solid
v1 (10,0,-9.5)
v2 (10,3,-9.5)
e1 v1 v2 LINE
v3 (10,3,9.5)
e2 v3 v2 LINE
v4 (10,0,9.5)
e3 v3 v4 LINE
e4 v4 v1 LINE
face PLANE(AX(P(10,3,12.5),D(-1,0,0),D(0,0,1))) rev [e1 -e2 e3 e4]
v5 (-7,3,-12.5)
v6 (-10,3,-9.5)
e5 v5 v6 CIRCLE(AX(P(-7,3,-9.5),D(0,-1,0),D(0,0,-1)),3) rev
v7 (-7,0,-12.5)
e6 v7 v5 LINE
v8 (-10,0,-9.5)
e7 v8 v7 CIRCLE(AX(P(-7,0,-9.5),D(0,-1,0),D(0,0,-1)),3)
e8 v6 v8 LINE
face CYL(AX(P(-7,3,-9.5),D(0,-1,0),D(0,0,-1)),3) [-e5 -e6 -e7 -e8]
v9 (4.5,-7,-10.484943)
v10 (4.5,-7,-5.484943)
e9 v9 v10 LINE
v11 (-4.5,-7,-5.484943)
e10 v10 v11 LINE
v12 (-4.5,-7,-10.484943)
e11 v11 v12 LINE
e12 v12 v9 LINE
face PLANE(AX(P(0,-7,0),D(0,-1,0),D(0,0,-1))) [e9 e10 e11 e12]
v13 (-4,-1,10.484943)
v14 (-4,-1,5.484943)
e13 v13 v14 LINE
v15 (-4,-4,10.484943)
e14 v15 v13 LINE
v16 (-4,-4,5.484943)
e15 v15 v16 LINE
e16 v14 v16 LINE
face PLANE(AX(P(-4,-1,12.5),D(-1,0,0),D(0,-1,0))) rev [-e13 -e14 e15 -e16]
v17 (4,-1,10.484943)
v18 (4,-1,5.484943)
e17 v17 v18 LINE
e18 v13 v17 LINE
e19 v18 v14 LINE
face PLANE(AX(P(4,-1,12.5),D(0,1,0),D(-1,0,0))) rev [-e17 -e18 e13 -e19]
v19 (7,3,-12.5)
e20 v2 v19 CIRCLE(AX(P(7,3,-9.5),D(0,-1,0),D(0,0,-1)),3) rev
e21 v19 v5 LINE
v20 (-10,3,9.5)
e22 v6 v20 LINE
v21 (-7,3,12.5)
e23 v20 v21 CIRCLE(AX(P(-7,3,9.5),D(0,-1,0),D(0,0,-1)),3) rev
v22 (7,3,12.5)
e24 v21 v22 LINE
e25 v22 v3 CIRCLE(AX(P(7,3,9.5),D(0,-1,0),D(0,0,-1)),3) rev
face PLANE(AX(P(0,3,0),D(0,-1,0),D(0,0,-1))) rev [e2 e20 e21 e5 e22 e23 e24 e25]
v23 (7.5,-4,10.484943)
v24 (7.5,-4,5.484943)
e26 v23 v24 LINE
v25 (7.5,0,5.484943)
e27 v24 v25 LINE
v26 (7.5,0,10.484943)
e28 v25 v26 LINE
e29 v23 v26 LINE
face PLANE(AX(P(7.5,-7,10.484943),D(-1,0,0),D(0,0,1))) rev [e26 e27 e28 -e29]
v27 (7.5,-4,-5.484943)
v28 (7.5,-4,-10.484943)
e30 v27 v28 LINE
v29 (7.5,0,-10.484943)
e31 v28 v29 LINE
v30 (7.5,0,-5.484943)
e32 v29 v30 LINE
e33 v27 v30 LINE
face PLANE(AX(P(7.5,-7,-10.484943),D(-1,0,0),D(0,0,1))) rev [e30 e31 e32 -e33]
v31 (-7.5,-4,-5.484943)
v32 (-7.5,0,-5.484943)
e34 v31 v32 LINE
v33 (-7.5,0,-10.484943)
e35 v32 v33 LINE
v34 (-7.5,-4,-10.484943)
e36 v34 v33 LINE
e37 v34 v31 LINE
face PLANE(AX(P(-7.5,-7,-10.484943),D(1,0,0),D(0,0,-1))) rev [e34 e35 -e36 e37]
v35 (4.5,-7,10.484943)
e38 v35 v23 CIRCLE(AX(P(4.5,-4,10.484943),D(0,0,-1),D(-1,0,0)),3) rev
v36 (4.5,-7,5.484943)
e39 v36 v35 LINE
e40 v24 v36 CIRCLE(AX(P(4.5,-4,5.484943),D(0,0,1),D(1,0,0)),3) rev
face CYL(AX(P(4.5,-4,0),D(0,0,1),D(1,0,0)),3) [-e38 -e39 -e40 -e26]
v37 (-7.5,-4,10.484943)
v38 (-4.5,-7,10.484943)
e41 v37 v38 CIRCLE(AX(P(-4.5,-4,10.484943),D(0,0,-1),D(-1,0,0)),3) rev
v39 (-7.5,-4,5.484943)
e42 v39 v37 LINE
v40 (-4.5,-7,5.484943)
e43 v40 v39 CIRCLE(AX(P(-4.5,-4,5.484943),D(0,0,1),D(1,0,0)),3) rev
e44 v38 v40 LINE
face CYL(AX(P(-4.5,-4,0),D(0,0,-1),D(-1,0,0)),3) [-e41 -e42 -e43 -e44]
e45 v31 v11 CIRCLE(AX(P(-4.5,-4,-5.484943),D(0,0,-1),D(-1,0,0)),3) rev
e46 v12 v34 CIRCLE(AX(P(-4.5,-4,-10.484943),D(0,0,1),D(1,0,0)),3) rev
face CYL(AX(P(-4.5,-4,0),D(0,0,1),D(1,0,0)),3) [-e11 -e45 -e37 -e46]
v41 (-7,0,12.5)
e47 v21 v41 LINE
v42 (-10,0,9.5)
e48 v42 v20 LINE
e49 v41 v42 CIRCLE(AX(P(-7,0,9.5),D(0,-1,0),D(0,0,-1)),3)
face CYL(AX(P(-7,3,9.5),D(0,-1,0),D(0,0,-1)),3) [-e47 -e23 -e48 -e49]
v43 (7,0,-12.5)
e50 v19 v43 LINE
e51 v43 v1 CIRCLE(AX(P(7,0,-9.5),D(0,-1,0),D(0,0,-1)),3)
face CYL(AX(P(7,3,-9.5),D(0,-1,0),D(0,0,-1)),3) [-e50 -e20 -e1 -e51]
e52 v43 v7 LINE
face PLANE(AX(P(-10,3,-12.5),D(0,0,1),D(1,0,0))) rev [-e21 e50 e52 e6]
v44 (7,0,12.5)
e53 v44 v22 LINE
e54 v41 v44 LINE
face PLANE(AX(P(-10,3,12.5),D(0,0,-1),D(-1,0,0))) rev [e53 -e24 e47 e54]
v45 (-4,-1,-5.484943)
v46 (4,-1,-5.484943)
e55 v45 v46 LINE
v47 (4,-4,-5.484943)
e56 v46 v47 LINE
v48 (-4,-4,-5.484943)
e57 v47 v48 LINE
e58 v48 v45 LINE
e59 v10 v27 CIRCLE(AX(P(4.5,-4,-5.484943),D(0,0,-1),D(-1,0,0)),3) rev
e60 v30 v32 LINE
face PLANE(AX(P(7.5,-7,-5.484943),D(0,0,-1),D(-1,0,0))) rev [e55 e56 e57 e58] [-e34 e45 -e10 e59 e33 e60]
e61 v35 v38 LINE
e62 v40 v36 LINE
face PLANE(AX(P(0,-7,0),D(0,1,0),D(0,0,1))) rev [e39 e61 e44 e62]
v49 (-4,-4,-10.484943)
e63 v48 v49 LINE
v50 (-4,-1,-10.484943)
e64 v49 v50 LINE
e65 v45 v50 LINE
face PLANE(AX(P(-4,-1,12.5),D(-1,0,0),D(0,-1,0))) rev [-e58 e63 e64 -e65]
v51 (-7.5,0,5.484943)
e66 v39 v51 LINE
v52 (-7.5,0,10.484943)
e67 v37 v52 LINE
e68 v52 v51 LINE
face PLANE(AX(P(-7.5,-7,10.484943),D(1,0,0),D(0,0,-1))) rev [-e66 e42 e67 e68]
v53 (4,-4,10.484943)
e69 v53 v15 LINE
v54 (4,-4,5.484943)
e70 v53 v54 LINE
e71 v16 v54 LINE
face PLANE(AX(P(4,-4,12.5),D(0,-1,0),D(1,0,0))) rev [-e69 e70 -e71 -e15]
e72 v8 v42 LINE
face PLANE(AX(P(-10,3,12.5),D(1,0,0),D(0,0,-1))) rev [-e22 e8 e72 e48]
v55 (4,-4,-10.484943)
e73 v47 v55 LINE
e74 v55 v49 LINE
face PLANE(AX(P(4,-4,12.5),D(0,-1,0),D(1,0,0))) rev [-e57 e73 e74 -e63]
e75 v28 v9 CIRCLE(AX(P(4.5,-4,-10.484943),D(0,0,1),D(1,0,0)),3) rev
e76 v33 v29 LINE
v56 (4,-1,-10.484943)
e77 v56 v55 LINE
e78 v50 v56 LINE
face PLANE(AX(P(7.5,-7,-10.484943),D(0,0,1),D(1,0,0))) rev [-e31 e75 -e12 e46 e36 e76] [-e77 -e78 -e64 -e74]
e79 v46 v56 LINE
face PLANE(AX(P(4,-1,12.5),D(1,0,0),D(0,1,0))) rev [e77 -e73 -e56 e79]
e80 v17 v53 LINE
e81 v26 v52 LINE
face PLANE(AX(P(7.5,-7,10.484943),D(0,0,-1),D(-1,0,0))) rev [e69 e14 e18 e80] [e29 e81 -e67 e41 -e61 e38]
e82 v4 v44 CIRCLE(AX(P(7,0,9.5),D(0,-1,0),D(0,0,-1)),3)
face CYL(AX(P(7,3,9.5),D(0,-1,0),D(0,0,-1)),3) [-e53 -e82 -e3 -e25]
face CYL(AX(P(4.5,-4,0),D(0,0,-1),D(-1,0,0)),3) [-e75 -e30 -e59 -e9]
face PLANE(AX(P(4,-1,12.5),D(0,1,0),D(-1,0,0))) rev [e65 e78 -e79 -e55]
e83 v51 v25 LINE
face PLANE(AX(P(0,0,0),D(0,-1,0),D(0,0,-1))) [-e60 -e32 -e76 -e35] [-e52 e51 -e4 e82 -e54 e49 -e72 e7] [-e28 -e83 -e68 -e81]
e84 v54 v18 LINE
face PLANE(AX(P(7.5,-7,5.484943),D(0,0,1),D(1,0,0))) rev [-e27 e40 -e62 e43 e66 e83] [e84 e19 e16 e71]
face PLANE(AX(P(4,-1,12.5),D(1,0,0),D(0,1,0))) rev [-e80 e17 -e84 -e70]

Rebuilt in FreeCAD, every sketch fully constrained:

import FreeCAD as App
import Part
import Sketcher
from FreeCAD import Vector


def edges_at(feature, points):
    """Names of the edges that pass closest to the given points."""
    edges = feature.Shape.Edges
    near = lambda p: min(range(len(edges)), key=lambda i: edges[i].distToShape(Part.Vertex(*p))[0])
    return sorted({f"Edge{near(p) + 1}" for p in points})

doc = App.newDocument("Part")
params = doc.addObject("Spreadsheet::Sheet", "Params")
for row, (alias, value) in enumerate([
    ("sketch1_width", "20 mm"),
    ("sketch1_height", "25 mm"),
    ("pad1_length", "3 mm"),
    ("sketch2_width", "15 mm"),
    ("sketch2_height", "5 mm"),
    ("pad2_length", "7 mm"),
    ("fillet_radius", "3 mm"),
    ("sketch3_width", "8 mm"),
    ("sketch3_height", "3 mm"),
    ("fillet2_radius", "3 mm"),
], start=1):
    params.set(f"A{row}", alias)
    params.set(f"B{row}", "=" + value)
    params.setAlias(f"B{row}", alias)

body = doc.addObject("PartDesign::Body", "Body")

# Sketch on XZ plane
sketch1 = doc.addObject("Sketcher::SketchObject", "Sketch")
body.addObject(sketch1)
sketch1.AttachmentSupport = (doc.XZ_Plane, [""])
sketch1.MapMode = "FlatFace"
sketch1.addGeometry([
    Part.LineSegment(Vector(-10, -12, 0), Vector(-10, 12, 0)),
    Part.LineSegment(Vector(-10, 12, 0), Vector(10, 12, 0)),
    Part.LineSegment(Vector(10, 12, 0), Vector(10, -12, 0)),
    Part.LineSegment(Vector(10, -12, 0), Vector(-10, -12, 0)),
], False)
sketch1.addConstraint([
    Sketcher.Constraint("Coincident", 0, 2, 1, 1),
    Sketcher.Constraint("Coincident", 1, 2, 2, 1),
    Sketcher.Constraint("Coincident", 2, 2, 3, 1),
    Sketcher.Constraint("Coincident", 3, 2, 0, 1),
    Sketcher.Constraint("Vertical", 0),
    Sketcher.Constraint("Horizontal", 1),
    Sketcher.Constraint("Vertical", 2),
    Sketcher.Constraint("Horizontal", 3),
    Sketcher.Constraint("Symmetric", 0, 2, 2, 2, -1, 1),
    Sketcher.Constraint("DistanceX", 1, 1, 1, 2, 20.0),
    Sketcher.Constraint("DistanceY", 0, 1, 0, 2, 25.0),
])
sketch1.setExpression("Constraints[9]", "Params.sketch1_width")
sketch1.setExpression("Constraints[10]", "Params.sketch1_height")
pad1 = doc.addObject("PartDesign::Pad", "Pad")
body.addObject(pad1)
pad1.Profile = sketch1
pad1.setExpression("Length", "Params.pad1_length")
pad1.Reversed = True

# Sketch on XZ plane
sketch2 = doc.addObject("Sketcher::SketchObject", "Sketch001")
body.addObject(sketch2)
sketch2.AttachmentSupport = (doc.XZ_Plane, [""])
sketch2.MapMode = "FlatFace"
sketch2.addGeometry([
    Part.LineSegment(Vector(8, -10, 0), Vector(8, -5, 0)),  # 0
    Part.LineSegment(Vector(8, -5, 0), Vector(-8, -5, 0)),  # 1
    Part.LineSegment(Vector(-8, -5, 0), Vector(-8, -10, 0)),  # 2
    Part.LineSegment(Vector(-8, -10, 0), Vector(8, -10, 0)),  # 3
    Part.LineSegment(Vector(8, 5, 0), Vector(8, 10, 0)),  # 4
    Part.LineSegment(Vector(8, 10, 0), Vector(-8, 10, 0)),  # 5
    Part.LineSegment(Vector(-8, 10, 0), Vector(-8, 5, 0)),  # 6
    Part.LineSegment(Vector(-8, 5, 0), Vector(8, 5, 0)),  # 7
], False)
sketch2.addConstraint([
    Sketcher.Constraint("Coincident", 0, 2, 1, 1),
    Sketcher.Constraint("Coincident", 1, 2, 2, 1),
    Sketcher.Constraint("Coincident", 2, 2, 3, 1),
    Sketcher.Constraint("Coincident", 3, 2, 0, 1),
    Sketcher.Constraint("Coincident", 4, 2, 5, 1),
    Sketcher.Constraint("Coincident", 5, 2, 6, 1),
    Sketcher.Constraint("Coincident", 6, 2, 7, 1),
    Sketcher.Constraint("Coincident", 7, 2, 4, 1),
    Sketcher.Constraint("Vertical", 0),
    Sketcher.Constraint("Horizontal", 1),
    Sketcher.Constraint("Vertical", 2),
    Sketcher.Constraint("Horizontal", 3),
    Sketcher.Constraint("Vertical", 4),
    Sketcher.Constraint("Horizontal", 5),
    Sketcher.Constraint("Vertical", 6),
    Sketcher.Constraint("Horizontal", 7),
    Sketcher.Constraint("Symmetric", 2, 2, 4, 2, -1, 1),
    Sketcher.Constraint("Symmetric", 0, 2, 6, 2, -1, 1),
    Sketcher.Constraint("Vertical", 3, 2, 4, 2),
    Sketcher.Constraint("DistanceX", 1, 2, 1, 1, 15.0),
    Sketcher.Constraint("DistanceY", 0, 1, 0, 2, 5.0),
    Sketcher.Constraint("DistanceY", 0, 2, -1, 1, 5.484943),
])
sketch2.setExpression("Constraints[19]", "Params.sketch2_width")
sketch2.setExpression("Constraints[20]", "Params.sketch2_height")
pad2 = doc.addObject("PartDesign::Pad", "Pad001")
body.addObject(pad2)
pad2.Profile = sketch2
pad2.setExpression("Length", "Params.pad2_length")
doc.recompute()

fillet = doc.addObject("PartDesign::Fillet", "Fillet")
body.addObject(fillet)
fillet.Base = (pad2, edges_at(pad2, [
    (10, 1.5, 12.5),
    (-10, 1.5, 12.5),
    (-10, 1.5, -12.5),
    (10, 1.5, -12.5),
]))
fillet.setExpression("Radius", "Params.fillet_radius")

# Sketch on XY plane
sketch3 = doc.addObject("Sketcher::SketchObject", "Sketch002")
body.addObject(sketch3)
sketch3.AttachmentSupport = (doc.XY_Plane, [""])
sketch3.MapMode = "FlatFace"
sketch3.AttachmentOffset = App.Placement(Vector(0, 0, -10.484943), App.Rotation())
sketch3.addGeometry([
    Part.LineSegment(Vector(4, -1, 0), Vector(4, -4, 0)),
    Part.LineSegment(Vector(4, -4, 0), Vector(-4, -4, 0)),
    Part.LineSegment(Vector(-4, -4, 0), Vector(-4, -1, 0)),
    Part.LineSegment(Vector(-4, -1, 0), Vector(4, -1, 0)),
], False)
sketch3.addConstraint([
    Sketcher.Constraint("Coincident", 0, 2, 1, 1),
    Sketcher.Constraint("Coincident", 1, 2, 2, 1),
    Sketcher.Constraint("Coincident", 2, 2, 3, 1),
    Sketcher.Constraint("Coincident", 3, 2, 0, 1),
    Sketcher.Constraint("Vertical", 0),
    Sketcher.Constraint("Horizontal", 1),
    Sketcher.Constraint("Vertical", 2),
    Sketcher.Constraint("Horizontal", 3),
    Sketcher.Constraint("DistanceX", 1, 2, 1, 1, 8.0),
    Sketcher.Constraint("DistanceY", 0, 2, 0, 1, 3.0),
    Sketcher.Constraint("DistanceX", -1, 1, 0, 2, 4.0),
    Sketcher.Constraint("DistanceY", 0, 2, -1, 1, 4.0),
])
sketch3.setExpression("Constraints[8]", "Params.sketch3_width")
sketch3.setExpression("Constraints[9]", "Params.sketch3_height")
pocket1 = doc.addObject("PartDesign::Pocket", "Pocket")
body.addObject(pocket1)
pocket1.Profile = sketch3
pocket1.Type = "ThroughAll"
pocket1.Reversed = True
doc.recompute()

fillet2 = doc.addObject("PartDesign::Fillet", "Fillet001")
body.addObject(fillet2)
fillet2.Base = (pocket1, edges_at(pocket1, [
    (-7.5, -7, -7.985),
    (7.5, -7, -7.985),
    (7.5, -7, 7.985),
    (-7.5, -7, 7.985),
]))
fillet2.setExpression("Radius", "Params.fillet2_radius")

doc.recompute()
